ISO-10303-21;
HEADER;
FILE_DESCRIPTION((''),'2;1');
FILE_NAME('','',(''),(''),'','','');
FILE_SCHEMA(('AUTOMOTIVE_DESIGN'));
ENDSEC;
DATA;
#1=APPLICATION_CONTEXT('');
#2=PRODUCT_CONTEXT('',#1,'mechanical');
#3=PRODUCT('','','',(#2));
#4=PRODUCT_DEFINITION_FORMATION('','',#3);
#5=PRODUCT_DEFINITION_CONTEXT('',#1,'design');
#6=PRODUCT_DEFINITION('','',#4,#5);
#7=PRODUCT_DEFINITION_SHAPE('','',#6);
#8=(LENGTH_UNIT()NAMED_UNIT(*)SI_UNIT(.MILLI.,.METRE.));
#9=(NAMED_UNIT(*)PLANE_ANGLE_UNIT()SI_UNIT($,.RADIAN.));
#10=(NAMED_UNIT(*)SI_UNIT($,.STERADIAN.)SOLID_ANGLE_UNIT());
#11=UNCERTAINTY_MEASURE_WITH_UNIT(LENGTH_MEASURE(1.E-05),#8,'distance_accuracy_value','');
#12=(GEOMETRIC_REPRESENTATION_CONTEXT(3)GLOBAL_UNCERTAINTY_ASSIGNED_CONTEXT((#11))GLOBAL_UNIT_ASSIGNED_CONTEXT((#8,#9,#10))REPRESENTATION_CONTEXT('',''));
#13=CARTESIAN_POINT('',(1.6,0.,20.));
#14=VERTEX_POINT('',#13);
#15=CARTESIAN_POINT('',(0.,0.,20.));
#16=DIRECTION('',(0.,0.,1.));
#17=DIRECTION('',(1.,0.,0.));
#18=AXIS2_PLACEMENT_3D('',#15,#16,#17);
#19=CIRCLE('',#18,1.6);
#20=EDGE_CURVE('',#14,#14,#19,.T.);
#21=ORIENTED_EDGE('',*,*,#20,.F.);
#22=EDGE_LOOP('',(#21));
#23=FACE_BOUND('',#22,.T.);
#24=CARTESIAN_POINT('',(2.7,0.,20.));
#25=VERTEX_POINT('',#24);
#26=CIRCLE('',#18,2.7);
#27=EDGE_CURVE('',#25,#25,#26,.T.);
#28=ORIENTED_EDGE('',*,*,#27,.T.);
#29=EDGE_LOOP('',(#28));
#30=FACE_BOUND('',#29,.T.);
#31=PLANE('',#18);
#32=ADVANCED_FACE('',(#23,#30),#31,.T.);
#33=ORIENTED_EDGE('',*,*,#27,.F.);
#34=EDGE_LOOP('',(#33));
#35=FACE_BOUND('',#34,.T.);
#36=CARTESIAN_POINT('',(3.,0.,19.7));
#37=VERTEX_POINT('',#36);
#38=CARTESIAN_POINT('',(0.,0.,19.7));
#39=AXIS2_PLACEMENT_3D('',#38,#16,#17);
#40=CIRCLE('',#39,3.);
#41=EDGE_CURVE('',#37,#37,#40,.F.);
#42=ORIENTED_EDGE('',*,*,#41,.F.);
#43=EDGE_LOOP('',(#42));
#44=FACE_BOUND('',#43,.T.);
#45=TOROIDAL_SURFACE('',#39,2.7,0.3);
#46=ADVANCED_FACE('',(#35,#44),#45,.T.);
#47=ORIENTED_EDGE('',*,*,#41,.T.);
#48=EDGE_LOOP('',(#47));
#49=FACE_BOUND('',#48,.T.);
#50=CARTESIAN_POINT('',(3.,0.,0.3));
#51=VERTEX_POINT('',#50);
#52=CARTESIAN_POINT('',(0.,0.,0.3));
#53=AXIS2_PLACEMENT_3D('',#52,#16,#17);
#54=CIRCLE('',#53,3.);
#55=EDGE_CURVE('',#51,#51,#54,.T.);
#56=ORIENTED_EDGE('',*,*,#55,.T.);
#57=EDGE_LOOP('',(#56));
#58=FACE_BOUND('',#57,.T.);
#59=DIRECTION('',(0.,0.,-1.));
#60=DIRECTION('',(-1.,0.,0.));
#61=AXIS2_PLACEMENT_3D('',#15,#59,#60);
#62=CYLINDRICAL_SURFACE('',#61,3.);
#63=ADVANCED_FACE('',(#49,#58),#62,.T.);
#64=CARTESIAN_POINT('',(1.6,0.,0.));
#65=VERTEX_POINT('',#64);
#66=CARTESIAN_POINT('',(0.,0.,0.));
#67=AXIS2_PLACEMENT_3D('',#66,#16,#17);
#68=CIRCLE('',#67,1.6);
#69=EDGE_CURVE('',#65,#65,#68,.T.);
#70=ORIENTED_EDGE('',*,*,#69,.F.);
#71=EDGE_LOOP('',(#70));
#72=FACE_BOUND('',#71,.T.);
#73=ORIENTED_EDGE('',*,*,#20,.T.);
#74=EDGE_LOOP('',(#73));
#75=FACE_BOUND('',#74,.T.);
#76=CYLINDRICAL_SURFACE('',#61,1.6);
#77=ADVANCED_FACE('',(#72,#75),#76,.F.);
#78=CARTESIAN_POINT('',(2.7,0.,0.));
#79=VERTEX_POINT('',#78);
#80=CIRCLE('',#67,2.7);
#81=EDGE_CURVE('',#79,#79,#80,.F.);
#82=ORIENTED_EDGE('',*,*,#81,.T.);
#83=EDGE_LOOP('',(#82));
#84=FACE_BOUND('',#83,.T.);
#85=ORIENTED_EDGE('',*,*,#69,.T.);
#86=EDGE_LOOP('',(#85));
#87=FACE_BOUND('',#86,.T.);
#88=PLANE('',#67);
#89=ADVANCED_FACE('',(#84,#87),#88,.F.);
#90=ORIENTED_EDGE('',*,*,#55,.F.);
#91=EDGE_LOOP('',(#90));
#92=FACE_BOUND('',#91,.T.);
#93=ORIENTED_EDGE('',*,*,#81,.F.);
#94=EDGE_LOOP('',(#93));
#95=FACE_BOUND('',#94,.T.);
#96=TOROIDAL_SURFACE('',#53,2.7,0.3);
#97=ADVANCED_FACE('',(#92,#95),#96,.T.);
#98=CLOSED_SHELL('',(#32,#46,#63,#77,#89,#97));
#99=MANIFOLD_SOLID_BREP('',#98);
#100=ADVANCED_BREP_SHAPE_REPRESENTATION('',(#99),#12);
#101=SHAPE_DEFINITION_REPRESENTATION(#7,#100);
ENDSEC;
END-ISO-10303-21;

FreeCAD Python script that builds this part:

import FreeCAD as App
import Part
import Sketcher
from FreeCAD import Vector
Q = App.Units.Quantity


def edges_at(feature, points):
    """Names of the edges that pass closest to the given points."""
    edges = feature.Shape.Edges
    near = lambda p: min(range(len(edges)), key=lambda i: edges[i].distToShape(Part.Vertex(*p))[0])
    return sorted({f"Edge{near(p) + 1}" for p in points})

doc = App.newDocument("Part")
body = doc.addObject("PartDesign::Body", "Body")

sketch1 = body.newObject("Sketcher::SketchObject", "Sketch")
sketch1.AttachmentSupport = (doc.getObject("XY_Plane"), [""])
sketch1.MapMode = "FlatFace"
sketch1.addGeometry(Part.Circle(Vector(0, 0, 0), Vector(0, 0, 1), 3), False)
sketch1.addGeometry(Part.Circle(Vector(0, 0, 0), Vector(0, 0, 1), 1.6), False)
sketch1.addConstraint(Sketcher.Constraint("Coincident", 0, 3, -1, 1))
sketch1.addConstraint(Sketcher.Constraint("Coincident", 1, 3, -1, 1))
sketch1.addConstraint(Sketcher.Constraint("Diameter", 0, Q("6 mm")))
sketch1.addConstraint(Sketcher.Constraint("Diameter", 1, Q("3.2 mm")))
pad1 = body.newObject("PartDesign::Pad", "Pad")
pad1.Profile = sketch1
pad1.Length = 20
doc.recompute()

fillet = body.newObject("PartDesign::Fillet", "Fillet")
fillet.Base = (pad1, edges_at(pad1, [(-3, 0, 0), (-3, 0, 20)]))
fillet.Radius = 0.3

doc.recompute()
